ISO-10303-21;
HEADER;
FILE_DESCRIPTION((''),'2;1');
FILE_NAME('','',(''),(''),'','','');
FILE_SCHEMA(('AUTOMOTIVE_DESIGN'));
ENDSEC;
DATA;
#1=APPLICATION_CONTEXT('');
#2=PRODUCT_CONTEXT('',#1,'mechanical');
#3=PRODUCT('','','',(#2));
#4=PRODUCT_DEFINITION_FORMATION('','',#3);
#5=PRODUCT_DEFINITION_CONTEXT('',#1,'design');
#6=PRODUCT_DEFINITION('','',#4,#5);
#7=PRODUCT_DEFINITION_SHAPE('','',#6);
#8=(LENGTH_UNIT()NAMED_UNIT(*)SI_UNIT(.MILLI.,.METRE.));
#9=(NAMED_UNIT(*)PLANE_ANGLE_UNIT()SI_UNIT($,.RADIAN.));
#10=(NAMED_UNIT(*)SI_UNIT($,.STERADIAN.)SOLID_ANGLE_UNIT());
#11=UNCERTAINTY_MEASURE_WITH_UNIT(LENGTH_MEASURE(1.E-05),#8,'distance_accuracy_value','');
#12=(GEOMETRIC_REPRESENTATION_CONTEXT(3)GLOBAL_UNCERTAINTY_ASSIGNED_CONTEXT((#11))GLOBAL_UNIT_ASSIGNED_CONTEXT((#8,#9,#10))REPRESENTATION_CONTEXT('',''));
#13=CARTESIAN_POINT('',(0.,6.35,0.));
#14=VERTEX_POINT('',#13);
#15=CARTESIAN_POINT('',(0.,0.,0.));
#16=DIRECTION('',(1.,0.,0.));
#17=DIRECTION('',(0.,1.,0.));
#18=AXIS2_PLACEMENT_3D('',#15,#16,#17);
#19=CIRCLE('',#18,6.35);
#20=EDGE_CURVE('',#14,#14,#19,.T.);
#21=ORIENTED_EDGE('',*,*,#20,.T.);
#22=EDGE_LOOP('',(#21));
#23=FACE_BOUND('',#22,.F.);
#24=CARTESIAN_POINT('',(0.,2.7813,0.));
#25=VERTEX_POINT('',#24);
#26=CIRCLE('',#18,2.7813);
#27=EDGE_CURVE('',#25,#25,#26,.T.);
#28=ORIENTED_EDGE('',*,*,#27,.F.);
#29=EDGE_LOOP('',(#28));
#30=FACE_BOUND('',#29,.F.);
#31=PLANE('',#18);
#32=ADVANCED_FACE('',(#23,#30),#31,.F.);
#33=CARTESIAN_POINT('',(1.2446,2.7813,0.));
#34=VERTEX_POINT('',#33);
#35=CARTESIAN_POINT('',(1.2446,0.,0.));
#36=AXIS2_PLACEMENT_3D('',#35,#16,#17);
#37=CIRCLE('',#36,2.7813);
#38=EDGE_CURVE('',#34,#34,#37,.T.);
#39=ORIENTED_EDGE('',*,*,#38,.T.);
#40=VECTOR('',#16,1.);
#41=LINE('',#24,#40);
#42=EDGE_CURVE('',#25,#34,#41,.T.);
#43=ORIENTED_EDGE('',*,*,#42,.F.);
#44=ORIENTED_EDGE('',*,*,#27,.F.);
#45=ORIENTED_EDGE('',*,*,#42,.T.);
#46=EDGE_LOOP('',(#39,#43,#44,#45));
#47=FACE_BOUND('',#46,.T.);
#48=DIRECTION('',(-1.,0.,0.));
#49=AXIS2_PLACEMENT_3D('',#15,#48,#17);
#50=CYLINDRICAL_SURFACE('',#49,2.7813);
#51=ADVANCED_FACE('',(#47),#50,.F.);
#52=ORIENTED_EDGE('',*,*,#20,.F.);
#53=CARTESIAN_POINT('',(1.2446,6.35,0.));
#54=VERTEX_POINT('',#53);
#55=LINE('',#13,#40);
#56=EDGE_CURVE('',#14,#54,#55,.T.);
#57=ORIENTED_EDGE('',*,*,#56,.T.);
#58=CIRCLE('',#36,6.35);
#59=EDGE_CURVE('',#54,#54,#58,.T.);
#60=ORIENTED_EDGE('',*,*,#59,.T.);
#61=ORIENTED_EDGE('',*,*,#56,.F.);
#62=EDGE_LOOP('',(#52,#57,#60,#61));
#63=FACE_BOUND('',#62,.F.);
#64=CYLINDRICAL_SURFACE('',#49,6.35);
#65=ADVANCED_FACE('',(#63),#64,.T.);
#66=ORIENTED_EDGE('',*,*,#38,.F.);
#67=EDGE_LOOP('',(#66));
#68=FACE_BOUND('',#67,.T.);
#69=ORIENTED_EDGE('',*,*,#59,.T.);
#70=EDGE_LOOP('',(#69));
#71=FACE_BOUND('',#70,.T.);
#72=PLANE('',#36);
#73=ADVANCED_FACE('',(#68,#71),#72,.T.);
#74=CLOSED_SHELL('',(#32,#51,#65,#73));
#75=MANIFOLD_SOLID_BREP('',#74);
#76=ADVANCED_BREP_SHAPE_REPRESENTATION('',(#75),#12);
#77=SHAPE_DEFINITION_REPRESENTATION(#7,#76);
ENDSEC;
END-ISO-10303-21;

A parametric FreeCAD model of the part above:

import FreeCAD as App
import Part
import Sketcher

V = App.Vector
Q = App.Units.Quantity

doc = App.newDocument("Part")
params = doc.addObject("Spreadsheet::Sheet", "Params")
for row, (alias, value) in enumerate([
    ("sketch1_diameter", "0.5 in"),
    ("sketch1_diameter2", "0.219 in"),
    ("pad1_length", "0.049 in"),
], start=1):
    params.set(f"A{row}", alias)
    params.set(f"B{row}", "=" + value)
    params.setAlias(f"B{row}", alias)

body = doc.addObject("PartDesign::Body", "Body")

sketch1 = body.newObject("Sketcher::SketchObject", "Sketch")
sketch1.AttachmentSupport = (doc.getObject("YZ_Plane"), [""])
sketch1.MapMode = "FlatFace"
sketch1.addGeometry([
    Part.Circle(V(0, 0, 0), V(0, 0, 1), 6.3),
    Part.Circle(V(0, 0, 0), V(0, 0, 1), 2.8),
], False)
sketch1.addConstraint([
    Sketcher.Constraint("Coincident", 0, 3, -1, 1),
    Sketcher.Constraint("Coincident", 1, 3, -1, 1),
    Sketcher.Constraint("Diameter", 0, Q("0.5 in")),
    Sketcher.Constraint("Diameter", 1, Q("0.219 in")),
])
sketch1.setExpression("Constraints[2]", "Params.sketch1_diameter")
sketch1.setExpression("Constraints[3]", "Params.sketch1_diameter2")
pad1 = body.newObject("PartDesign::Pad", "Pad")
pad1.Profile = sketch1
pad1.setExpression("Length", "Params.pad1_length")

doc.recompute()
